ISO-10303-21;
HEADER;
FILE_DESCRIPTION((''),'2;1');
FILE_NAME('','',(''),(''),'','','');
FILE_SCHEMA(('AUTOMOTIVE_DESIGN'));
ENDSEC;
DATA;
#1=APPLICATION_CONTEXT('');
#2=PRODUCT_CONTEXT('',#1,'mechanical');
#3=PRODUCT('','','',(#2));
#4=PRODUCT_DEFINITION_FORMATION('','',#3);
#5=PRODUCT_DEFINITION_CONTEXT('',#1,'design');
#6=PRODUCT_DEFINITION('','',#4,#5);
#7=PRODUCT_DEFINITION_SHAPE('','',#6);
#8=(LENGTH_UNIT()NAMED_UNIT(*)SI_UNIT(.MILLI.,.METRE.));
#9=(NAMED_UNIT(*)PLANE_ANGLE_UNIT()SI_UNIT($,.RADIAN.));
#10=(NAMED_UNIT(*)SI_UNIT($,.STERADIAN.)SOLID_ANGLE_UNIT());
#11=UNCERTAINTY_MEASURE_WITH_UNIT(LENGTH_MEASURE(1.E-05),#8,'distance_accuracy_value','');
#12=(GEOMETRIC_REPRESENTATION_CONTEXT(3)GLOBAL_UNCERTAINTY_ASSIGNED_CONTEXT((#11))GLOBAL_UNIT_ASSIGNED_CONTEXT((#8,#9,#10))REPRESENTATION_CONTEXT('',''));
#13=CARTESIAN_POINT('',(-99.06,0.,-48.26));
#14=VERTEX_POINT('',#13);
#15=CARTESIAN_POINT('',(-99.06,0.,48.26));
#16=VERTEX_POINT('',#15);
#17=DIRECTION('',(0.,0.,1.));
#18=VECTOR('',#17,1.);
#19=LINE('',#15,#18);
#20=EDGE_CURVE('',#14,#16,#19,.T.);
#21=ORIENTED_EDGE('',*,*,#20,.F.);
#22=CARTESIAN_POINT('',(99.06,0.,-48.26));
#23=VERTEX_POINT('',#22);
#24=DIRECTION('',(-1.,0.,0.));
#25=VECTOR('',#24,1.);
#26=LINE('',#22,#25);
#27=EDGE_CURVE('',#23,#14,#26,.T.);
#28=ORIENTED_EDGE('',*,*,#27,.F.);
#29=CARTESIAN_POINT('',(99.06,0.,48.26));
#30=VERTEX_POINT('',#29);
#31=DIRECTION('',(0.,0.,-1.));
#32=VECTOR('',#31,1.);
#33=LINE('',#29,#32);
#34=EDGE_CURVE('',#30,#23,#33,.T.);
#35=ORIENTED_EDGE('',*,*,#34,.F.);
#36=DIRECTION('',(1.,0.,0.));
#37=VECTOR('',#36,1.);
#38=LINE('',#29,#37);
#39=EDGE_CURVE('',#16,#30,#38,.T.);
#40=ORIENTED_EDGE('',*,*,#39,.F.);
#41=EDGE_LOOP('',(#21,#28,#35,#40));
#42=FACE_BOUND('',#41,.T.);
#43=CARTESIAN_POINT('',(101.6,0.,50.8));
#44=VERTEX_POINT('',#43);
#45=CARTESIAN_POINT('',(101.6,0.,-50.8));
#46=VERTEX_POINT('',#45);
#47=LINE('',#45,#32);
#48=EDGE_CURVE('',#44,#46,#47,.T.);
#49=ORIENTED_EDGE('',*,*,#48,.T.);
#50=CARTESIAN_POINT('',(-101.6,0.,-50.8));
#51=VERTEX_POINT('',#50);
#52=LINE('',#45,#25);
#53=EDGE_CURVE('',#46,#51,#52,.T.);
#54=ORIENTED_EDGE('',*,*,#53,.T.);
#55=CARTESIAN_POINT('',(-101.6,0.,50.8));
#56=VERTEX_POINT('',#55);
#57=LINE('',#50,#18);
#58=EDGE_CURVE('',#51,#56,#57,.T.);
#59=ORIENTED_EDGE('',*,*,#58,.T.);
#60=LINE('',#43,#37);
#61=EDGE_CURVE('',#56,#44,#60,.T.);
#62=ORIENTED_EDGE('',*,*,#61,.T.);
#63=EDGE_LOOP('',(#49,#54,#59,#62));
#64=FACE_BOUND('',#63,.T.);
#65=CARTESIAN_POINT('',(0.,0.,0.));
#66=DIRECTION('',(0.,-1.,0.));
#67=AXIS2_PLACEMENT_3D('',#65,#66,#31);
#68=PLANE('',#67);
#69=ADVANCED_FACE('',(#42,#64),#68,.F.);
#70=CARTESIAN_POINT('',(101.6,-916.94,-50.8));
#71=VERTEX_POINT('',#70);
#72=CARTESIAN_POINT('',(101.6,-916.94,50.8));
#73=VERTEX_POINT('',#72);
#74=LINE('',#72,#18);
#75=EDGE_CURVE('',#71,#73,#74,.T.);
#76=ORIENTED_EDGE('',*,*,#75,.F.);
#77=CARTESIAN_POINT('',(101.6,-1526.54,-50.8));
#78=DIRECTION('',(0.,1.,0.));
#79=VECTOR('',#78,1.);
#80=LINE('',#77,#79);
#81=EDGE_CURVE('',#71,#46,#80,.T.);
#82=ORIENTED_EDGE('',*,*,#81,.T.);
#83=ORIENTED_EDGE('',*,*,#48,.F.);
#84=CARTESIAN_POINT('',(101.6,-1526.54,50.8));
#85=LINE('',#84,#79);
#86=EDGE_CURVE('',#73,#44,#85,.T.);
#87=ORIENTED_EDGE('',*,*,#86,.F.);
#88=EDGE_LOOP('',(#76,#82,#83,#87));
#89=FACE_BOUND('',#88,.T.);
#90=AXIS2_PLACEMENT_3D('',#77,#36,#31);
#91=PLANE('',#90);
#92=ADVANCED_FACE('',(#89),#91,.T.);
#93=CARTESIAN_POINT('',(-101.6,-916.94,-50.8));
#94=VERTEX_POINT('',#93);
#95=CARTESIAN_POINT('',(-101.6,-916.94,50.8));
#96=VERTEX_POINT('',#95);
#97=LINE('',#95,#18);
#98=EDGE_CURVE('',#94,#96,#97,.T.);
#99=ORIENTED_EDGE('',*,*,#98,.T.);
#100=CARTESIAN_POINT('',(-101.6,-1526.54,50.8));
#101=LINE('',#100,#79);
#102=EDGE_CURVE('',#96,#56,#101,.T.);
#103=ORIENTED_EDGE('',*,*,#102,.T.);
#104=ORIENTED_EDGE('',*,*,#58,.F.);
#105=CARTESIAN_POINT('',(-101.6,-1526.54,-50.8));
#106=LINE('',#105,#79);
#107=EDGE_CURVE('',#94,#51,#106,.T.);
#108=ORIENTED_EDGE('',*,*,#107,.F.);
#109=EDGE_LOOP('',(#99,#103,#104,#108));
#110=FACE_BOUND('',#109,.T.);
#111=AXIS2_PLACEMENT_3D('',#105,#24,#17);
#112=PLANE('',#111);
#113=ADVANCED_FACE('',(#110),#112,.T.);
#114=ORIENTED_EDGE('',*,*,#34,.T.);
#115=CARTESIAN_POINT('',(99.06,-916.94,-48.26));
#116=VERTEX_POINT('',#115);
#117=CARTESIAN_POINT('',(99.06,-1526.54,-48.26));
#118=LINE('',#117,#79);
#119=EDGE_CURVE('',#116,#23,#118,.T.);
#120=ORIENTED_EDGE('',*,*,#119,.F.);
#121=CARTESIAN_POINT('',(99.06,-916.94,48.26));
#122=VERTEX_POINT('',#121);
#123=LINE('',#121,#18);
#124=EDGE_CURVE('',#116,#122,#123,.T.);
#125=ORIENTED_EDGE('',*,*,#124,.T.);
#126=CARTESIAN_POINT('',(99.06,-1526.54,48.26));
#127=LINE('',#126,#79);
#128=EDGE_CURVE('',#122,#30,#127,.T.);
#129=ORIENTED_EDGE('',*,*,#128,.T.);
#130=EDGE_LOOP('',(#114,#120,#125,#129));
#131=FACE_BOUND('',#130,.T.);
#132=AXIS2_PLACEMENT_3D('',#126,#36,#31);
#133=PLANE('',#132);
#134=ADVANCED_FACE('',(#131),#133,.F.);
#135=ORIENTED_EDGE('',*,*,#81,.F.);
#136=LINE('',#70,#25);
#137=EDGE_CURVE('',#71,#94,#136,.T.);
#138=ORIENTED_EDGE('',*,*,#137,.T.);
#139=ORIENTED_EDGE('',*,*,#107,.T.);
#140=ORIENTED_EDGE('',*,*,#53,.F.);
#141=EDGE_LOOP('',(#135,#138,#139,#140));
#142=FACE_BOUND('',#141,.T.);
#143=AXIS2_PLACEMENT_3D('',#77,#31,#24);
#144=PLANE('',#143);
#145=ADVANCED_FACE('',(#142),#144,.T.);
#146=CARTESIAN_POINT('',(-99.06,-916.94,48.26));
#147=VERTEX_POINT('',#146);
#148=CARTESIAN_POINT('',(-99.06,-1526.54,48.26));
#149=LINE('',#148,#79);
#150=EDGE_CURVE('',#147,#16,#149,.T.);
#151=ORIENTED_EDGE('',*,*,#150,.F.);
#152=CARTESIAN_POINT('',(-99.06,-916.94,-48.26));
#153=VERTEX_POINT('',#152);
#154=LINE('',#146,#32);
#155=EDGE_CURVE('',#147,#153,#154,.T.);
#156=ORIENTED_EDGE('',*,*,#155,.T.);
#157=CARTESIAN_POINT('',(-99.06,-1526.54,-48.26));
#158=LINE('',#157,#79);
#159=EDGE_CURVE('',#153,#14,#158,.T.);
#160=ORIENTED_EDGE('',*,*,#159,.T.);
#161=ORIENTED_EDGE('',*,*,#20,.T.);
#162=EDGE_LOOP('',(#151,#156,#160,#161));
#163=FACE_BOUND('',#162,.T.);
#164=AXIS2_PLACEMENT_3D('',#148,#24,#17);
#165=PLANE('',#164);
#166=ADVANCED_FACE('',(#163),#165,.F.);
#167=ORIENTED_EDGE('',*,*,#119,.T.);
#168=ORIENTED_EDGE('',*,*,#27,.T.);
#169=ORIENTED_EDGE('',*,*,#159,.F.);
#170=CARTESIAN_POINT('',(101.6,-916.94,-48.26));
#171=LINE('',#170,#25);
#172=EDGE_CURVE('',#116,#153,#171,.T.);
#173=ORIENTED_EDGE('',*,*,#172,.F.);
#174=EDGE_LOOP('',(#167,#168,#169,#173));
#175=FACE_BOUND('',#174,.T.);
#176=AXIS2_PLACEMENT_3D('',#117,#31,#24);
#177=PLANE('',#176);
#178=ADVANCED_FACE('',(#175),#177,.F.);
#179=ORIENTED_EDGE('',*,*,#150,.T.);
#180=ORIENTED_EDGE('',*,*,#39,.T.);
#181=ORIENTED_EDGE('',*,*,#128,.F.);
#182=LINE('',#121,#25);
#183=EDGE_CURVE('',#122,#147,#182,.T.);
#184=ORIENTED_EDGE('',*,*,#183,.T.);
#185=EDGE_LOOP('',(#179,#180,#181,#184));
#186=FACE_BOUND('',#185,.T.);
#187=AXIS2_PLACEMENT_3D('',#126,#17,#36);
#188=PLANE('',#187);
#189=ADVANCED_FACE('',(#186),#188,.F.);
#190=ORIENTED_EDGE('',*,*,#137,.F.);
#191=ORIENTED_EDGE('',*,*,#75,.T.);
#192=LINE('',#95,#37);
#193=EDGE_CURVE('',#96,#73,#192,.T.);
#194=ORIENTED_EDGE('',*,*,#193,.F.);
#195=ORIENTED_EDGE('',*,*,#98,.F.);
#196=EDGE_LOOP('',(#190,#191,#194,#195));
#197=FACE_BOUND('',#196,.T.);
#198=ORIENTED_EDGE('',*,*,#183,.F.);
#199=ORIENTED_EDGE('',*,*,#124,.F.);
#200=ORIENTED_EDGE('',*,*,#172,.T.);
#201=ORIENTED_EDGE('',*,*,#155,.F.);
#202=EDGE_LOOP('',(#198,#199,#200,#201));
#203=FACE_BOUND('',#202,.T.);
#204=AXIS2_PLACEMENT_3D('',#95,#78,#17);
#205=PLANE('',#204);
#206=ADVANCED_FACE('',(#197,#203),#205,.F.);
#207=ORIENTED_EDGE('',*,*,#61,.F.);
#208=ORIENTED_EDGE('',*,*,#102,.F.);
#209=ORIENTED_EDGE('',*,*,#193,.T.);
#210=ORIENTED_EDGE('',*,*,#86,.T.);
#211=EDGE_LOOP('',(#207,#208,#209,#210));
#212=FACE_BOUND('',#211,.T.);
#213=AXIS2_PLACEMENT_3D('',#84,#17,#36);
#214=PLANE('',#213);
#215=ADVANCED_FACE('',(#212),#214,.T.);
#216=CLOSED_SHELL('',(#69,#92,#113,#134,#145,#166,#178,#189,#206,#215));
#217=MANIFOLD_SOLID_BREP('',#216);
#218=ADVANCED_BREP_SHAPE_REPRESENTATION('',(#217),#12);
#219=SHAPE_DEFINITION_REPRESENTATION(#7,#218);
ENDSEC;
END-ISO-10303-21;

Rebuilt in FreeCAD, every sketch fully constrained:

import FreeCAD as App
import Part
import Sketcher
Q = App.Units.Quantity

doc = App.newDocument("Part")
body = doc.addObject("PartDesign::Body", "Body")

sketch1 = body.newObject("Sketcher::SketchObject", "Sketch")
sketch1.AttachmentSupport = (doc.getObject("XZ_Plane"), [""])
sketch1.MapMode = "FlatFace"
sketch1.addGeometry([
    Part.LineSegment(App.Vector(-102, -51, 0), App.Vector(-102, 51, 0)),
    Part.LineSegment(App.Vector(-102, 51, 0), App.Vector(102, 51, 0)),
    Part.LineSegment(App.Vector(102, 51, 0), App.Vector(102, -51, 0)),
    Part.LineSegment(App.Vector(102, -51, 0), App.Vector(-102, -51, 0)),
    Part.LineSegment(App.Vector(99, 48, 0), App.Vector(-99, 48, 0)),
    Part.LineSegment(App.Vector(-99, 48, 0), App.Vector(-99, -48, 0)),
    Part.LineSegment(App.Vector(-99, -48, 0), App.Vector(99, -48, 0)),
    Part.LineSegment(App.Vector(99, -48, 0), App.Vector(99, 48, 0)),
], False)
sketch1.addConstraint([
    Sketcher.Constraint("Coincident", 0, 2, 1, 1),
    Sketcher.Constraint("Coincident", 1, 2, 2, 1),
    Sketcher.Constraint("Coincident", 2, 2, 3, 1),
    Sketcher.Constraint("Coincident", 3, 2, 0, 1),
    Sketcher.Constraint("Coincident", 4, 2, 5, 1),
    Sketcher.Constraint("Coincident", 5, 2, 6, 1),
    Sketcher.Constraint("Coincident", 6, 2, 7, 1),
    Sketcher.Constraint("Coincident", 7, 2, 4, 1),
    Sketcher.Constraint("Vertical", 0),
    Sketcher.Constraint("Horizontal", 1),
    Sketcher.Constraint("Vertical", 2),
    Sketcher.Constraint("Horizontal", 3),
    Sketcher.Constraint("Horizontal", 4),
    Sketcher.Constraint("Vertical", 5),
    Sketcher.Constraint("Horizontal", 6),
    Sketcher.Constraint("Vertical", 7),
    Sketcher.Constraint("Symmetric", 0, 2, 2, 2, -1, 1),
    Sketcher.Constraint("Symmetric", 4, 2, 6, 2, -1, 1),
    Sketcher.Constraint("DistanceX", 1, 1, 1, 2, Q("8 in")),
    Sketcher.Constraint("DistanceY", 0, 1, 0, 2, Q("4 in")),
    Sketcher.Constraint("DistanceX", 4, 2, 4, 1, Q("7.8 in")),
    Sketcher.Constraint("DistanceY", 5, 2, 5, 1, Q("3.8 in")),
])
pad1 = body.newObject("PartDesign::Pad", "Pad")
pad1.Profile = sketch1
pad1.Length = Q("60.1 in")

sketch2 = body.newObject("Sketcher::SketchObject", "Sketch001")
sketch2.AttachmentSupport = (doc.getObject("YZ_Plane"), [""])
sketch2.MapMode = "FlatFace"
sketch2.AttachmentOffset = App.Placement(App.Vector(0, 0, 4 * 25.4), App.Rotation())
sketch2.addGeometry([
    Part.LineSegment(App.Vector(-917, 51, 0), App.Vector(-1527, 51, 0)),
    Part.LineSegment(App.Vector(-1527, 51, 0), App.Vector(-1527, -48, 0)),
    Part.LineSegment(App.Vector(-1527, -48, 0), App.Vector(-917, -48, 0)),
    Part.LineSegment(App.Vector(-917, -48, 0), App.Vector(-917, 51, 0)),
], False)
sketch2.addConstraint([
    Sketcher.Constraint("Coincident", 0, 2, 1, 1),
    Sketcher.Constraint("Coincident", 1, 2, 2, 1),
    Sketcher.Constraint("Coincident", 2, 2, 3, 1),
    Sketcher.Constraint("Coincident", 3, 2, 0, 1),
    Sketcher.Constraint("Horizontal", 0),
    Sketcher.Constraint("Vertical", 1),
    Sketcher.Constraint("Horizontal", 2),
    Sketcher.Constraint("Vertical", 3),
    Sketcher.Constraint("DistanceX", 0, 2, 0, 1, Q("24 in")),
    Sketcher.Constraint("DistanceY", 1, 2, 1, 1, Q("3.9 in")),
    Sketcher.Constraint("DistanceY", -1, 1, 0, 2, Q("2 in")),
    Sketcher.Constraint("DistanceX", 0, 2, -1, 1, Q("60.1 in")),
])
pocket1 = body.newObject("PartDesign::Pocket", "Pocket")
pocket1.Profile = sketch2
pocket1.Type = "ThroughAll"

sketch3 = body.newObject("Sketcher::SketchObject", "Sketch002")
sketch3.AttachmentSupport = (doc.getObject("XY_Plane"), [""])
sketch3.MapMode = "FlatFace"
sketch3.AttachmentOffset = App.Placement(App.Vector(0, 0, -1.9 * 25.4), App.Rotation())
sketch3.addGeometry([
    Part.LineSegment(App.Vector(-101.6, -1524, 0), App.Vector(-101.6, -1526.5, 0)),
    Part.LineSegment(App.Vector(-101.6, -1526.5, 0), App.Vector(101.6, -1526.5, 0)),
    Part.LineSegment(App.Vector(101.6, -1526.5, 0), App.Vector(101.6, -1524, 0)),
    Part.LineSegment(App.Vector(101.6, -1524, 0), App.Vector(-101.6, -1524, 0)),
], False)
sketch3.addConstraint([
    Sketcher.Constraint("Coincident", 0, 2, 1, 1),
    Sketcher.Constraint("Coincident", 1, 2, 2, 1),
    Sketcher.Constraint("Coincident", 2, 2, 3, 1),
    Sketcher.Constraint("Coincident", 3, 2, 0, 1),
    Sketcher.Constraint("Vertical", 0),
    Sketcher.Constraint("Horizontal", 1),
    Sketcher.Constraint("Vertical", 2),
    Sketcher.Constraint("Horizontal", 3),
    Sketcher.Constraint("DistanceX", 1, 1, 1, 2, Q("8 in")),
    Sketcher.Constraint("DistanceY", 0, 2, 0, 1, Q("0.1 in")),
    Sketcher.Constraint("DistanceX", 0, 2, -1, 1, Q("4 in")),
    Sketcher.Constraint("DistanceY", 2, 2, -1, 1, Q("60 in")),
])
pad2 = body.newObject("PartDesign::Pad", "Pad001")
pad2.Profile = sketch3
pad2.Length = Q("4 in")

sketch4 = body.newObject("Sketcher::SketchObject", "Sketch003")
sketch4.AttachmentSupport = (doc.getObject("YZ_Plane"), [""])
sketch4.MapMode = "FlatFace"
sketch4.AttachmentOffset = App.Placement(App.Vector(0, 0, -4 * 25.4), App.Rotation())
sketch4.addGeometry([
    Part.LineSegment(App.Vector(-916.9, -48.3, 0), App.Vector(-916.9, -50.8, 0)),
    Part.LineSegment(App.Vector(-916.9, -50.8, 0), App.Vector(-1526.5, -50.8, 0)),
    Part.LineSegment(App.Vector(-1526.5, -50.8, 0), App.Vector(-1526.5, 53.3, 0)),
    Part.LineSegment(App.Vector(-1526.5, 53.3, 0), App.Vector(-1524, 53.3, 0)),
    Part.LineSegment(App.Vector(-1524, 53.3, 0), App.Vector(-1524, -48.3, 0)),
    Part.LineSegment(App.Vector(-1524, -48.3, 0), App.Vector(-916.9, -48.3, 0)),
], False)
sketch4.addConstraint([
    Sketcher.Constraint("Coincident", 0, 2, 1, 1),
    Sketcher.Constraint("Coincident", 1, 2, 2, 1),
    Sketcher.Constraint("Coincident", 2, 2, 3, 1),
    Sketcher.Constraint("Coincident", 3, 2, 4, 1),
    Sketcher.Constraint("Coincident", 4, 2, 5, 1),
    Sketcher.Constraint("Coincident", 5, 2, 0, 1),
    Sketcher.Constraint("Vertical", 0),
    Sketcher.Constraint("Horizontal", 1),
    Sketcher.Constraint("Vertical", 2),
    Sketcher.Constraint("Horizontal", 3),
    Sketcher.Constraint("Vertical", 4),
    Sketcher.Constraint("Horizontal", 5),
    Sketcher.Constraint("Equal", 3, 0),
    Sketcher.Constraint("DistanceX", 1, 2, 1, 1, Q("24 in")),
    Sketcher.Constraint("DistanceY", 4, 2, 4, 1, Q("4 in")),
    Sketcher.Constraint("DistanceX", 3, 1, 3, 2, Q("0.1 in")),
    Sketcher.Constraint("DistanceY", 0, 2, -1, 1, Q("2 in")),
    Sketcher.Constraint("DistanceX", 3, 2, -1, 1, Q("60 in")),
])
pocket2 = body.newObject("PartDesign::Pocket", "Pocket001")
pocket2.Profile = sketch4
pocket2.Type = "ThroughAll"
pocket2.Reversed = True

doc.recompute()
